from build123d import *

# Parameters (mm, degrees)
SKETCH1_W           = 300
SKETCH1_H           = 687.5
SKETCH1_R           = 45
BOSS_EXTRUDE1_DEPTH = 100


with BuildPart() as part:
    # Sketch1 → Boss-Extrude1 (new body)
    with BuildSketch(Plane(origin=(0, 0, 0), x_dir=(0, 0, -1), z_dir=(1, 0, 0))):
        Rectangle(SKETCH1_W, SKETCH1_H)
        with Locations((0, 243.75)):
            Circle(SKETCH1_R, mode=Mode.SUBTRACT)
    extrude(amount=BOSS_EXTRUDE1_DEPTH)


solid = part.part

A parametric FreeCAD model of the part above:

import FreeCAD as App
import Part
import Sketcher
Q = App.Units.Quantity


def add_polygon(sketch, points):
    """Adds a closed chain of lines whose ends are joined by coincident constraints."""
    first, n = sketch.GeometryCount, len(points)
    for a, b in zip(points, points[1:] + points[:1]):
        sketch.addGeometry(Part.LineSegment(App.Vector(*a, 0), App.Vector(*b, 0)), False)
    for i in range(n):
        sketch.addConstraint(Sketcher.Constraint("Coincident", first + i, 2, first + (i + 1) % n, 1))

doc = App.newDocument("Part")
body = doc.addObject("PartDesign::Body", "Body")

sketch1 = doc.addObject("Sketcher::SketchObject", "Sketch")
body.addObject(sketch1)
sketch1.AttachmentSupport = (doc.YZ_Plane, [""])
sketch1.MapMode = "FlatFace"
add_polygon(sketch1, [(344, 150), (-344, 150), (-344, -150), (344, -150)])
sketch1.addGeometry(Part.Circle(App.Vector(244, 0, 0), App.Vector(0, 0, 1), 45), False)
sketch1.addConstraint([
    Sketcher.Constraint("Horizontal", 0),
    Sketcher.Constraint("Vertical", 1),
    Sketcher.Constraint("Horizontal", 2),
    Sketcher.Constraint("Vertical", 3),
    Sketcher.Constraint("Symmetric", 0, 2, 2, 2, -1, 1),
    Sketcher.Constraint("PointOnObject", 4, 3, -1),
    Sketcher.Constraint("Diameter", 4, Q("90 mm")),
    Sketcher.Constraint("DistanceY", 1, 2, 1, 1, Q("300 mm")),
    Sketcher.Constraint("DistanceX", 0, 2, 0, 1, Q("687.5 mm")),
    Sketcher.Constraint("DistanceX", 4, 3, 2, 2, Q("100 mm")),
])
pad1 = doc.addObject("PartDesign::Pad", "Pad")
body.addObject(pad1)
pad1.Profile = sketch1
pad1.Length = 100

doc.recompute()
